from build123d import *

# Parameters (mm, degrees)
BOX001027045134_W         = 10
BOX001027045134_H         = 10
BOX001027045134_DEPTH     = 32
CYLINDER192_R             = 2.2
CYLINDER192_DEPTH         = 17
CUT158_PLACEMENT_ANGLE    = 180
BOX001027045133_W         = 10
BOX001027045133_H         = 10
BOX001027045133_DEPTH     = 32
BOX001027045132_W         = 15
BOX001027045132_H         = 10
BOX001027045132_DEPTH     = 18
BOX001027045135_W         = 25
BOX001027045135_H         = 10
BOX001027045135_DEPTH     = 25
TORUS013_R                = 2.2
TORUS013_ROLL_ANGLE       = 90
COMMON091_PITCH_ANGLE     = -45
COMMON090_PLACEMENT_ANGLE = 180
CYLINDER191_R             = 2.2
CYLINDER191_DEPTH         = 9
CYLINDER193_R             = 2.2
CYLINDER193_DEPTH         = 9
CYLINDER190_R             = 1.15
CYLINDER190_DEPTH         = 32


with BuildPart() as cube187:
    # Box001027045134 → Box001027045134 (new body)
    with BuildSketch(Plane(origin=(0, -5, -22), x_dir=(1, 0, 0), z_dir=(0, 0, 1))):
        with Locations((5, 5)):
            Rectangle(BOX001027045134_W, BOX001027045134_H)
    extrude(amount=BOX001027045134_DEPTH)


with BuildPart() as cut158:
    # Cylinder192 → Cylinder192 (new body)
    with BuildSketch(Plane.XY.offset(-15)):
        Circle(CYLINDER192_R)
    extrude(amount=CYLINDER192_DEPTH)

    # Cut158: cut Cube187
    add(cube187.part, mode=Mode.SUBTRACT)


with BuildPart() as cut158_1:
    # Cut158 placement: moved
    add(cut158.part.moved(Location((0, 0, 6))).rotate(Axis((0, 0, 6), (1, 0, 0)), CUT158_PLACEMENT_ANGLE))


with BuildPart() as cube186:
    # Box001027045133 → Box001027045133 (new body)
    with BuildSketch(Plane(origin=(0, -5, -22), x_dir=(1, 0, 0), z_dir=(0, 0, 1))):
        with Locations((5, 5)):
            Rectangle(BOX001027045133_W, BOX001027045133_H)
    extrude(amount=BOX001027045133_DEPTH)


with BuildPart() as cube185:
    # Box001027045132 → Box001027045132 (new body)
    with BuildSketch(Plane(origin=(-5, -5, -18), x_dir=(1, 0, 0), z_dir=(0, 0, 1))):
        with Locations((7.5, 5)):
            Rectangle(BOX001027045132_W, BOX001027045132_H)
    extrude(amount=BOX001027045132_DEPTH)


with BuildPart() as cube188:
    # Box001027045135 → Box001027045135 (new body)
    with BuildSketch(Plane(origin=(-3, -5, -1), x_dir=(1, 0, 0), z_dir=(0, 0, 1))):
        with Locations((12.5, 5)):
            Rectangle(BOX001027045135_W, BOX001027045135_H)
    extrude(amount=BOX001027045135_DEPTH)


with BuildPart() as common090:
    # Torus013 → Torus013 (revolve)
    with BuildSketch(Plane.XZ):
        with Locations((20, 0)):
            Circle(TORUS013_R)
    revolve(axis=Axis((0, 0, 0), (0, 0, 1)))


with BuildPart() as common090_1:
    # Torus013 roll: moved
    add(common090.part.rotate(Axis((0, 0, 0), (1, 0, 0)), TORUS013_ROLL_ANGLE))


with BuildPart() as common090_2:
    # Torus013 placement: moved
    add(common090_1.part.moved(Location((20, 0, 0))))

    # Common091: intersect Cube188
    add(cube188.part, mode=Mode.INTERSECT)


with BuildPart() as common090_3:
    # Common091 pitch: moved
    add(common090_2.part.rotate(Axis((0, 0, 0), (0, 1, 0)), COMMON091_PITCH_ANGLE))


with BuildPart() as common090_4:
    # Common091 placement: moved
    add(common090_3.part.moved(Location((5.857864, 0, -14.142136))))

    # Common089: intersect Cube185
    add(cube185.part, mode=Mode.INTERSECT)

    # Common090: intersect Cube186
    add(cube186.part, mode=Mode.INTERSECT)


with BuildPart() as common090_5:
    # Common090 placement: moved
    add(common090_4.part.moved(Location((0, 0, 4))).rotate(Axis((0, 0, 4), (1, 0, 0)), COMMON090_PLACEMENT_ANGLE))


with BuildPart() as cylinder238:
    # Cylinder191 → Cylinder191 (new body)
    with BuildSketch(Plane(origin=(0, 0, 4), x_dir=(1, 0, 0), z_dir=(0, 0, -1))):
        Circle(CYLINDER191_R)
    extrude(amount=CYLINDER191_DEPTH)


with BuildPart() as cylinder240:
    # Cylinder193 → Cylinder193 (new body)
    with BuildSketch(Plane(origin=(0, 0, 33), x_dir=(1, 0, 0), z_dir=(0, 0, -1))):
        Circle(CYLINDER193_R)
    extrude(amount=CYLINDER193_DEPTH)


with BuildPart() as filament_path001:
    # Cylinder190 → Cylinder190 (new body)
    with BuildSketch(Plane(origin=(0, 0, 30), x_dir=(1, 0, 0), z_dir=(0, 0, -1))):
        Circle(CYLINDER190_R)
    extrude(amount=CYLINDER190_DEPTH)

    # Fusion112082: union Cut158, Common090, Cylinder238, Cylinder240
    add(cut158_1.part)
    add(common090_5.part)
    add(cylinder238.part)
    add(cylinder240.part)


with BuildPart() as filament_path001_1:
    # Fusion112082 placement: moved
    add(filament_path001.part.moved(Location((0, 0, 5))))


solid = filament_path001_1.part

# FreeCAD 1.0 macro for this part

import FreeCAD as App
import Part
import Sketcher
from FreeCAD import Vector
Q = App.Units.Quantity


def add_polygon(sketch, points):
    """Adds a closed chain of lines whose ends are joined by coincident constraints."""
    first, n = sketch.GeometryCount, len(points)
    for a, b in zip(points, points[1:] + points[:1]):
        sketch.addGeometry(Part.LineSegment(App.Vector(*a, 0), App.Vector(*b, 0)), False)
    for i in range(n):
        sketch.addConstraint(Sketcher.Constraint("Coincident", first + i, 2, first + (i + 1) % n, 1))

doc = App.newDocument("Part")
params = doc.addObject("Spreadsheet::Sheet", "Params")
for row, (alias, value) in enumerate([
    ("sketch1_width", "10 mm"),
    ("pad1_length", "32 mm"),
    ("sketch2_diameter", "4.4 mm"),
    ("pad2_length", "17 mm"),
    ("sketch3_width", "10 mm"),
    ("pad3_length", "32 mm"),
    ("sketch4_width", "15 mm"),
    ("sketch4_height", "10 mm"),
    ("pad4_length", "18 mm"),
    ("sketch5_width", "25 mm"),
    ("sketch5_height", "10 mm"),
    ("pad5_length", "25 mm"),
    ("sketch6_diameter", "4.4 mm"),
    ("revolution_angle", "360 deg"),
    ("sketch7_diameter", "4.4 mm"),
    ("pad6_length", "9 mm"),
    ("sketch8_diameter", "4.4 mm"),
    ("pad7_length", "9 mm"),
    ("sketch9_diameter", "2.3 mm"),
    ("pad8_length", "32 mm"),
], start=1):
    params.set(f"A{row}", alias)
    params.set(f"B{row}", "=" + value)
    params.setAlias(f"B{row}", alias)

body = doc.addObject("PartDesign::Body", "Body")

# Sketch on XY plane
sketch1 = body.newObject("Sketcher::SketchObject", "Sketch")
sketch1.AttachmentSupport = (doc.getObject("XY_Plane"), [""])
sketch1.MapMode = "FlatFace"
sketch1.AttachmentOffset = App.Placement(Vector(0, 0, -22), App.Rotation())
add_polygon(sketch1, [(0, 5), (0, -5), (10, -5), (10, 5)])  # lines 0-3
sketch1.addConstraint(Sketcher.Constraint("Vertical", 0))
sketch1.addConstraint(Sketcher.Constraint("Horizontal", 1))
sketch1.addConstraint(Sketcher.Constraint("Vertical", 2))
sketch1.addConstraint(Sketcher.Constraint("Horizontal", 3))
sketch1.addConstraint(Sketcher.Constraint("Symmetric", 0, 2, 3, 2, -1, 1))
sketch1.addConstraint(Sketcher.Constraint("Equal", 3, 0))
sketch1.addConstraint(Sketcher.Constraint("DistanceX", 1, 1, 1, 2, Q("10 mm")))
sketch1.setExpression("Constraints[10]", "Params.sketch1_width")
pad1 = body.newObject("PartDesign::Pad", "Pad")
pad1.Profile = sketch1
pad1.setExpression("Length", "Params.pad1_length")
body2 = doc.addObject("PartDesign::Body", "Body001")

# Sketch on XY plane
sketch2 = body2.newObject("Sketcher::SketchObject", "Sketch001")
sketch2.AttachmentSupport = (doc.getObject("XY_Plane001"), [""])
sketch2.MapMode = "FlatFace"
sketch2.AttachmentOffset = App.Placement(Vector(0, 0, -15), App.Rotation())
sketch2.addGeometry(Part.Circle(Vector(0, 0, 0), Vector(0, 0, 1), 2.2), False)
sketch2.addConstraint(Sketcher.Constraint("Coincident", 0, 3, -1, 1))
sketch2.addConstraint(Sketcher.Constraint("Diameter", 0, Q("4.4 mm")))
sketch2.setExpression("Constraints[1]", "Params.sketch2_diameter")
pad2 = body2.newObject("PartDesign::Pad", "Pad001")
pad2.Profile = sketch2
pad2.setExpression("Length", "Params.pad2_length")
doc.recompute()

boolean = body2.newObject("PartDesign::Boolean", "Boolean")
boolean.Type = "Cut"
boolean.addObjects([body])
body3 = doc.addObject("PartDesign::Body", "Body002")
doc.recompute()

body2.Placement = App.Placement(Vector(0, 0, 6), App.Rotation(Vector(1, 0, 0), 180))
boolean2 = body3.newObject("PartDesign::Boolean", "Boolean001")
boolean2.Type = "Fuse"
boolean2.addObjects([body2])
body4 = doc.addObject("PartDesign::Body", "Body003")

# Sketch on XY plane
sketch3 = body4.newObject("Sketcher::SketchObject", "Sketch002")
sketch3.AttachmentSupport = (doc.getObject("XY_Plane003"), [""])
sketch3.MapMode = "FlatFace"
sketch3.AttachmentOffset = App.Placement(Vector(0, 0, -22), App.Rotation())
add_polygon(sketch3, [(0, 5), (0, -5), (10, -5), (10, 5)])  # lines 0-3
sketch3.addConstraint(Sketcher.Constraint("Vertical", 0))
sketch3.addConstraint(Sketcher.Constraint("Horizontal", 1))
sketch3.addConstraint(Sketcher.Constraint("Vertical", 2))
sketch3.addConstraint(Sketcher.Constraint("Horizontal", 3))
sketch3.addConstraint(Sketcher.Constraint("Symmetric", 0, 2, 3, 2, -1, 1))
sketch3.addConstraint(Sketcher.Constraint("Equal", 3, 0))
sketch3.addConstraint(Sketcher.Constraint("DistanceX", 1, 1, 1, 2, Q("10 mm")))
sketch3.setExpression("Constraints[10]", "Params.sketch3_width")
pad3 = body4.newObject("PartDesign::Pad", "Pad002")
pad3.Profile = sketch3
pad3.setExpression("Length", "Params.pad3_length")
body5 = doc.addObject("PartDesign::Body", "Body004")

# Sketch on XY plane
sketch4 = body5.newObject("Sketcher::SketchObject", "Sketch003")
sketch4.AttachmentSupport = (doc.getObject("XY_Plane004"), [""])
sketch4.MapMode = "FlatFace"
sketch4.AttachmentOffset = App.Placement(Vector(0, 0, -18), App.Rotation())
add_polygon(sketch4, [(-5, 5), (-5, -5), (10, -5), (10, 5)])  # lines 0-3
sketch4.addConstraint(Sketcher.Constraint("Vertical", 0))
sketch4.addConstraint(Sketcher.Constraint("Horizontal", 1))
sketch4.addConstraint(Sketcher.Constraint("Vertical", 2))
sketch4.addConstraint(Sketcher.Constraint("Horizontal", 3))
sketch4.addConstraint(Sketcher.Constraint("DistanceX", 1, 1, 1, 2, Q("15 mm")))
sketch4.addConstraint(Sketcher.Constraint("DistanceY", 0, 2, 0, 1, Q("10 mm")))
sketch4.addConstraint(Sketcher.Constraint("DistanceX", 0, 2, -1, 1, Q("5 mm")))
sketch4.addConstraint(Sketcher.Constraint("DistanceY", 0, 2, -1, 1, Q("5 mm")))
sketch4.setExpression("Constraints[8]", "Params.sketch4_width")
sketch4.setExpression("Constraints[9]", "Params.sketch4_height")
pad4 = body5.newObject("PartDesign::Pad", "Pad003")
pad4.Profile = sketch4
pad4.setExpression("Length", "Params.pad4_length")
body6 = doc.addObject("PartDesign::Body", "Body005")

# Sketch on XY plane
sketch5 = body6.newObject("Sketcher::SketchObject", "Sketch004")
sketch5.AttachmentSupport = (doc.getObject("XY_Plane005"), [""])
sketch5.MapMode = "FlatFace"
sketch5.AttachmentOffset = App.Placement(Vector(0, 0, -1), App.Rotation())
add_polygon(sketch5, [(-3, 5), (-3, -5), (22, -5), (22, 5)])  # lines 0-3
sketch5.addConstraint(Sketcher.Constraint("Vertical", 0))
sketch5.addConstraint(Sketcher.Constraint("Horizontal", 1))
sketch5.addConstraint(Sketcher.Constraint("Vertical", 2))
sketch5.addConstraint(Sketcher.Constraint("Horizontal", 3))
sketch5.addConstraint(Sketcher.Constraint("DistanceX", 1, 1, 1, 2, Q("25 mm")))
sketch5.addConstraint(Sketcher.Constraint("DistanceY", 0, 2, 0, 1, Q("10 mm")))
sketch5.addConstraint(Sketcher.Constraint("DistanceX", 0, 2, -1, 1, Q("3 mm")))
sketch5.addConstraint(Sketcher.Constraint("DistanceY", 0, 2, -1, 1, Q("5 mm")))
sketch5.setExpression("Constraints[8]", "Params.sketch5_width")
sketch5.setExpression("Constraints[9]", "Params.sketch5_height")
pad5 = body6.newObject("PartDesign::Pad", "Pad004")
pad5.Profile = sketch5
pad5.setExpression("Length", "Params.pad5_length")
body7 = doc.addObject("PartDesign::Body", "Body006")

# Sketch on XZ plane
sketch6 = body7.newObject("Sketcher::SketchObject", "Sketch005")
sketch6.AttachmentSupport = (doc.getObject("XZ_Plane006"), [""])
sketch6.MapMode = "FlatFace"
sketch6.addGeometry(Part.Circle(Vector(20, 0, 0), Vector(0, 0, 1), 2.2), False)
sketch6.addConstraint(Sketcher.Constraint("PointOnObject", 0, 3, -1))
sketch6.addConstraint(Sketcher.Constraint("Diameter", 0, Q("4.4 mm")))
sketch6.addConstraint(Sketcher.Constraint("DistanceX", -1, 1, 0, 3, Q("20 mm")))
sketch6.setExpression("Constraints[1]", "Params.sketch6_diameter")
revolution = body7.newObject("PartDesign::Revolution", "Revolution")
revolution.Profile = sketch6
revolution.ReferenceAxis = (sketch6, ["V_Axis"])
revolution.setExpression("Angle", "Params.revolution_angle")
body8 = doc.addObject("PartDesign::Body", "Body007")
doc.recompute()

body7.Placement = App.Placement(Vector(0, 0, 0), App.Rotation(Vector(1, 0, 0), 90))
boolean3 = body8.newObject("PartDesign::Boolean", "Boolean002")
boolean3.Type = "Fuse"
boolean3.addObjects([body7])
body9 = doc.addObject("PartDesign::Body", "Body008")
doc.recompute()

body8.Placement = App.Placement(Vector(20, 0, 0), App.Rotation(Vector(0, 0, 1), 0))
boolean4 = body9.newObject("PartDesign::Boolean", "Boolean003")
boolean4.Type = "Fuse"
boolean4.addObjects([body8])
doc.recompute()

boolean5 = body9.newObject("PartDesign::Boolean", "Boolean004")
boolean5.Type = "Common"
boolean5.addObjects([body6])
body10 = doc.addObject("PartDesign::Body", "Body009")
doc.recompute()

body9.Placement = App.Placement(Vector(0, 0, 0), App.Rotation(Vector(0, 1, 0), 315))
boolean6 = body10.newObject("PartDesign::Boolean", "Boolean005")
boolean6.Type = "Fuse"
boolean6.addObjects([body9])
body11 = doc.addObject("PartDesign::Body", "Body010")
doc.recompute()

body10.Placement = App.Placement(Vector(5.857864, 0, -14.142136), App.Rotation(Vector(0, 0, 1), 0))
boolean7 = body11.newObject("PartDesign::Boolean", "Boolean006")
boolean7.Type = "Fuse"
boolean7.addObjects([body10])
doc.recompute()

boolean8 = body11.newObject("PartDesign::Boolean", "Boolean007")
boolean8.Type = "Common"
boolean8.addObjects([body5])
doc.recompute()

boolean9 = body11.newObject("PartDesign::Boolean", "Boolean008")
boolean9.Type = "Common"
boolean9.addObjects([body4])
body12 = doc.addObject("PartDesign::Body", "Body011")
doc.recompute()

body11.Placement = App.Placement(Vector(0, 0, 4), App.Rotation(Vector(1, 0, 0), 180))
boolean10 = body12.newObject("PartDesign::Boolean", "Boolean009")
boolean10.Type = "Fuse"
boolean10.addObjects([body11])
body13 = doc.addObject("PartDesign::Body", "Body012")

# Sketch on XY plane
sketch7 = body13.newObject("Sketcher::SketchObject", "Sketch006")
sketch7.AttachmentSupport = (doc.getObject("XY_Plane012"), [""])
sketch7.MapMode = "FlatFace"
sketch7.AttachmentOffset = App.Placement(Vector(0, 0, 4), App.Rotation())
sketch7.addGeometry(Part.Circle(Vector(0, 0, 0), Vector(0, 0, 1), 2.2), False)
sketch7.addConstraint(Sketcher.Constraint("Coincident", 0, 3, -1, 1))
sketch7.addConstraint(Sketcher.Constraint("Diameter", 0, Q("4.4 mm")))
sketch7.setExpression("Constraints[1]", "Params.sketch7_diameter")
pad6 = body13.newObject("PartDesign::Pad", "Pad005")
pad6.Profile = sketch7
pad6.setExpression("Length", "Params.pad6_length")
pad6.Reversed = True
body14 = doc.addObject("PartDesign::Body", "Body013")

# Sketch on XY plane
sketch8 = body14.newObject("Sketcher::SketchObject", "Sketch007")
sketch8.AttachmentSupport = (doc.getObject("XY_Plane013"), [""])
sketch8.MapMode = "FlatFace"
sketch8.AttachmentOffset = App.Placement(Vector(0, 0, 33), App.Rotation())
sketch8.addGeometry(Part.Circle(Vector(0, 0, 0), Vector(0, 0, 1), 2.2), False)
sketch8.addConstraint(Sketcher.Constraint("Coincident", 0, 3, -1, 1))
sketch8.addConstraint(Sketcher.Constraint("Diameter", 0, Q("4.4 mm")))
sketch8.setExpression("Constraints[1]", "Params.sketch8_diameter")
pad7 = body14.newObject("PartDesign::Pad", "Pad006")
pad7.Profile = sketch8
pad7.setExpression("Length", "Params.pad7_length")
pad7.Reversed = True
body15 = doc.addObject("PartDesign::Body", "Body014")

# Sketch on XY plane
sketch9 = body15.newObject("Sketcher::SketchObject", "Sketch008")
sketch9.AttachmentSupport = (doc.getObject("XY_Plane014"), [""])
sketch9.MapMode = "FlatFace"
sketch9.AttachmentOffset = App.Placement(Vector(0, 0, 30), App.Rotation())
sketch9.addGeometry(Part.Circle(Vector(0, 0, 0), Vector(0, 0, 1), 1.15), False)
sketch9.addConstraint(Sketcher.Constraint("Coincident", 0, 3, -1, 1))
sketch9.addConstraint(Sketcher.Constraint("Diameter", 0, Q("2.3 mm")))
sketch9.setExpression("Constraints[1]", "Params.sketch9_diameter")
pad8 = body15.newObject("PartDesign::Pad", "Pad007")
pad8.Profile = sketch9
pad8.setExpression("Length", "Params.pad8_length")
pad8.Reversed = True
doc.recompute()

boolean11 = body15.newObject("PartDesign::Boolean", "Boolean010")
boolean11.Type = "Fuse"
boolean11.addObjects([body3])
doc.recompute()

boolean12 = body15.newObject("PartDesign::Boolean", "Boolean011")
boolean12.Type = "Fuse"
boolean12.addObjects([body12])
doc.recompute()

boolean13 = body15.newObject("PartDesign::Boolean", "Boolean012")
boolean13.Type = "Fuse"
boolean13.addObjects([body13])
doc.recompute()

boolean14 = body15.newObject("PartDesign::Boolean", "Boolean013")
boolean14.Type = "Fuse"
boolean14.addObjects([body14])
body16 = doc.addObject("PartDesign::Body", "Body015")
doc.recompute()

body15.Placement = App.Placement(Vector(0, 0, 5), App.Rotation(Vector(0, 0, 1), 0))
boolean15 = body16.newObject("PartDesign::Boolean", "Boolean014")
boolean15.Type = "Fuse"
boolean15.addObjects([body15])

doc.recompute()
